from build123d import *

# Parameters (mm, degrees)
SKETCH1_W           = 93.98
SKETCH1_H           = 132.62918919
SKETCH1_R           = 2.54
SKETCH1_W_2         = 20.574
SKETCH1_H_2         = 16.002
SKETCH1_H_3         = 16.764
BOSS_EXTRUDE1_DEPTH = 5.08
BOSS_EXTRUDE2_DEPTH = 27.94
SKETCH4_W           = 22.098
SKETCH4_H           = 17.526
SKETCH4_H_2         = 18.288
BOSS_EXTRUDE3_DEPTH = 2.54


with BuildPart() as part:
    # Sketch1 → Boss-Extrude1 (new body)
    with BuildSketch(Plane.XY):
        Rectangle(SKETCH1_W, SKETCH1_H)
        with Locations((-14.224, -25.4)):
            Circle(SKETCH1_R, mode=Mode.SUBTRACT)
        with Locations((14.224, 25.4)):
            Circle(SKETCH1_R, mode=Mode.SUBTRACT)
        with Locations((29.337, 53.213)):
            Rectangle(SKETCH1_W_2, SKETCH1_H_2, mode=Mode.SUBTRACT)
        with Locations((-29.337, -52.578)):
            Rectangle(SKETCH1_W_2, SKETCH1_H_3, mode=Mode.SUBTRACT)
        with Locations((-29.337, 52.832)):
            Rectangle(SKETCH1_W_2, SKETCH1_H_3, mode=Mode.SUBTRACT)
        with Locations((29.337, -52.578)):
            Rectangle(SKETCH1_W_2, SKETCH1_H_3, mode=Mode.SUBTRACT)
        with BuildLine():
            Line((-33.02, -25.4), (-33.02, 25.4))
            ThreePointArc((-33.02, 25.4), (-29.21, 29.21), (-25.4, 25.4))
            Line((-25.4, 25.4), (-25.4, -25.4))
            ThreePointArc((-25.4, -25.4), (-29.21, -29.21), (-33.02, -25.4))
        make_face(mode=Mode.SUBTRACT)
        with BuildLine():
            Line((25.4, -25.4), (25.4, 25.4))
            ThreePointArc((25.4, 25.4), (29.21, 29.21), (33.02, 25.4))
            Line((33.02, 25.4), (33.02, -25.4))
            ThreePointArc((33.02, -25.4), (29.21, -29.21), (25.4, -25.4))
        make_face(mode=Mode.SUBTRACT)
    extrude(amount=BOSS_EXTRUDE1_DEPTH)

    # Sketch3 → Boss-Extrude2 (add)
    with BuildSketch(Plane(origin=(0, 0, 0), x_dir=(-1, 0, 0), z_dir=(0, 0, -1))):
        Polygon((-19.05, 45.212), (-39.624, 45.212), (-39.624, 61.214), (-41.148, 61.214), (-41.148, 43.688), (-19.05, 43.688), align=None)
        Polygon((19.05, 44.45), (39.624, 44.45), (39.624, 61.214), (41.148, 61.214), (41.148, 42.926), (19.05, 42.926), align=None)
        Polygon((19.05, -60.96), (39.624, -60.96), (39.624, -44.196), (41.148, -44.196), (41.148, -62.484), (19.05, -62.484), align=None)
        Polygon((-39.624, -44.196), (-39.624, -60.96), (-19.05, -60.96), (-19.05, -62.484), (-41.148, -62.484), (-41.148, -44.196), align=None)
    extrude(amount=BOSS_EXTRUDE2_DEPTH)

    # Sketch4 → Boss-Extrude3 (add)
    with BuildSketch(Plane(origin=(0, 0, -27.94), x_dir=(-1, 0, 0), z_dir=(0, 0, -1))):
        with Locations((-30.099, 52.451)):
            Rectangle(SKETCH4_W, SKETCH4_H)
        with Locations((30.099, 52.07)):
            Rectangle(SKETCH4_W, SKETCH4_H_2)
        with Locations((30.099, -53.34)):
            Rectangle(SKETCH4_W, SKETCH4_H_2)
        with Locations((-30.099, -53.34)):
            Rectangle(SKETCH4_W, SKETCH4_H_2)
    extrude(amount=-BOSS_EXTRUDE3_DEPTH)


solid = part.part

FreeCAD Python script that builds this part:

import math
import FreeCAD as App
import Part
import Sketcher
Q = App.Units.Quantity

doc = App.newDocument("Part")
body = doc.addObject("PartDesign::Body", "Body")

sketch1 = body.newObject("Sketcher::SketchObject", "Sketch")
sketch1.AttachmentSupport = (doc.getObject("XY_Plane"), [""])
sketch1.MapMode = "FlatFace"
sketch1.addGeometry([
    Part.LineSegment(App.Vector(-47, 66.3, 0), App.Vector(-47, -66.3, 0)),
    Part.LineSegment(App.Vector(-47, -66.3, 0), App.Vector(47, -66.3, 0)),
    Part.LineSegment(App.Vector(47, -66.3, 0), App.Vector(47, 66.3, 0)),
    Part.LineSegment(App.Vector(47, 66.3, 0), App.Vector(-47, 66.3, 0)),
    Part.LineSegment(App.Vector(-19.1, -61, 0), App.Vector(-39.6, -61, 0)),
    Part.LineSegment(App.Vector(-39.6, -61, 0), App.Vector(-39.6, -44.2, 0)),
    Part.LineSegment(App.Vector(-39.6, -44.2, 0), App.Vector(-19.1, -44.2, 0)),
    Part.LineSegment(App.Vector(-19.1, -44.2, 0), App.Vector(-19.1, -61, 0)),
    Part.ArcOfCircle(Part.Circle(App.Vector(-29.2, -25.4, 0), App.Vector(0, 0, 1), 3.8), math.radians(180), math.radians(360)),
    Part.LineSegment(App.Vector(-33, -25.4, 0), App.Vector(-33, 25.4, 0)),
    Part.ArcOfCircle(Part.Circle(App.Vector(-29.2, 25.4, 0), App.Vector(0, 0, 1), 3.8), math.radians(0), math.radians(180)),
    Part.LineSegment(App.Vector(-25.4, 25.4, 0), App.Vector(-25.4, -25.4, 0)),
    Part.Circle(App.Vector(-14.2, -25.4, 0), App.Vector(0, 0, 1), 2.5),
    Part.LineSegment(App.Vector(39.6, -61, 0), App.Vector(19.1, -61, 0)),
    Part.LineSegment(App.Vector(19.1, -61, 0), App.Vector(19.1, -44.2, 0)),
    Part.LineSegment(App.Vector(19.1, -44.2, 0), App.Vector(39.6, -44.2, 0)),
    Part.LineSegment(App.Vector(39.6, -44.2, 0), App.Vector(39.6, -61, 0)),
    Part.ArcOfCircle(Part.Circle(App.Vector(29.2, -25.4, 0), App.Vector(0, 0, 1), 3.8), math.radians(180), math.radians(360)),
    Part.LineSegment(App.Vector(25.4, -25.4, 0), App.Vector(25.4, 25.4, 0)),
    Part.ArcOfCircle(Part.Circle(App.Vector(29.2, 25.4, 0), App.Vector(0, 0, 1), 3.8), math.radians(0), math.radians(180)),
    Part.LineSegment(App.Vector(33, 25.4, 0), App.Vector(33, -25.4, 0)),
    Part.LineSegment(App.Vector(-19.1, 44.5, 0), App.Vector(-39.6, 44.5, 0)),
    Part.LineSegment(App.Vector(-39.6, 44.5, 0), App.Vector(-39.6, 61.2, 0)),
    Part.LineSegment(App.Vector(-39.6, 61.2, 0), App.Vector(-19.1, 61.2, 0)),
    Part.LineSegment(App.Vector(-19.1, 61.2, 0), App.Vector(-19.1, 44.5, 0)),
    Part.Circle(App.Vector(14.2, 25.4, 0), App.Vector(0, 0, 1), 2.5),
    Part.LineSegment(App.Vector(39.6, 45.2, 0), App.Vector(19.1, 45.2, 0)),
    Part.LineSegment(App.Vector(19.1, 45.2, 0), App.Vector(19.1, 61.2, 0)),
    Part.LineSegment(App.Vector(19.1, 61.2, 0), App.Vector(39.6, 61.2, 0)),
    Part.LineSegment(App.Vector(39.6, 61.2, 0), App.Vector(39.6, 45.2, 0)),
], False)
sketch1.addConstraint([
    Sketcher.Constraint("Coincident", 0, 2, 1, 1),
    Sketcher.Constraint("Coincident", 1, 2, 2, 1),
    Sketcher.Constraint("Coincident", 2, 2, 3, 1),
    Sketcher.Constraint("Coincident", 3, 2, 0, 1),
    Sketcher.Constraint("Coincident", 4, 2, 5, 1),
    Sketcher.Constraint("Coincident", 5, 2, 6, 1),
    Sketcher.Constraint("Coincident", 6, 2, 7, 1),
    Sketcher.Constraint("Coincident", 7, 2, 4, 1),
    Sketcher.Constraint("Tangent", 8, 1, 9, 1),
    Sketcher.Constraint("Tangent", 9, 2, 10, 2),
    Sketcher.Constraint("Tangent", 10, 1, 11, 1),
    Sketcher.Constraint("Tangent", 11, 2, 8, 2),
    Sketcher.Constraint("Coincident", 13, 2, 14, 1),
    Sketcher.Constraint("Coincident", 14, 2, 15, 1),
    Sketcher.Constraint("Coincident", 15, 2, 16, 1),
    Sketcher.Constraint("Coincident", 16, 2, 13, 1),
    Sketcher.Constraint("Tangent", 17, 1, 18, 1),
    Sketcher.Constraint("Tangent", 18, 2, 19, 2),
    Sketcher.Constraint("Tangent", 19, 1, 20, 1),
    Sketcher.Constraint("Tangent", 20, 2, 17, 2),
    Sketcher.Constraint("Coincident", 21, 2, 22, 1),
    Sketcher.Constraint("Coincident", 22, 2, 23, 1),
    Sketcher.Constraint("Coincident", 23, 2, 24, 1),
    Sketcher.Constraint("Coincident", 24, 2, 21, 1),
    Sketcher.Constraint("Coincident", 26, 2, 27, 1),
    Sketcher.Constraint("Coincident", 27, 2, 28, 1),
    Sketcher.Constraint("Coincident", 28, 2, 29, 1),
    Sketcher.Constraint("Coincident", 29, 2, 26, 1),
    Sketcher.Constraint("Vertical", 0),
    Sketcher.Constraint("Horizontal", 1),
    Sketcher.Constraint("Vertical", 2),
    Sketcher.Constraint("Horizontal", 3),
    Sketcher.Constraint("Horizontal", 4),
    Sketcher.Constraint("Vertical", 5),
    Sketcher.Constraint("Horizontal", 6),
    Sketcher.Constraint("Vertical", 7),
    Sketcher.Constraint("Vertical", 9),
    Sketcher.Constraint("Vertical", 11),
    Sketcher.Constraint("Horizontal", 13),
    Sketcher.Constraint("Vertical", 14),
    Sketcher.Constraint("Horizontal", 15),
    Sketcher.Constraint("Vertical", 16),
    Sketcher.Constraint("Vertical", 18),
    Sketcher.Constraint("Vertical", 20),
    Sketcher.Constraint("Horizontal", 21),
    Sketcher.Constraint("Vertical", 22),
    Sketcher.Constraint("Horizontal", 23),
    Sketcher.Constraint("Vertical", 24),
    Sketcher.Constraint("Horizontal", 26),
    Sketcher.Constraint("Vertical", 27),
    Sketcher.Constraint("Horizontal", 28),
    Sketcher.Constraint("Vertical", 29),
    Sketcher.Constraint("Equal", 10, 17),
    Sketcher.Constraint("Equal", 12, 25),
    Sketcher.Constraint("Symmetric", 10, 3, 17, 3, -1, 1),
    Sketcher.Constraint("Symmetric", 12, 3, 25, 3, -1, 1),
    Sketcher.Constraint("Symmetric", 0, 2, 2, 2, -1, 1),
    Sketcher.Constraint("Symmetric", 7, 2, 13, 2, -2),
    Sketcher.Constraint("Symmetric", 5, 2, 15, 2, -2),
    Sketcher.Constraint("Symmetric", 23, 2, 27, 2, -2),
    Sketcher.Constraint("Horizontal", 8, 3, 12, 3),
    Sketcher.Constraint("Horizontal", 12, 3, 17, 3),
    Sketcher.Constraint("Horizontal", 10, 3, 19, 3),
    Sketcher.Constraint("Vertical", 5, 2, 21, 2),
    Sketcher.Constraint("Vertical", 7, 2, 23, 2),
    Sketcher.Constraint("Vertical", 16, 2, 28, 2),
    Sketcher.Constraint("Equal", 16, 22),
    Sketcher.Constraint("Diameter", 12, Q("0.2 in")),
    Sketcher.Constraint("DistanceY", 9, 1, 9, 2, Q("2 in")),
    Sketcher.Constraint("Radius", 8, Q("0.15 in")),
    Sketcher.Constraint("DistanceX", 1, 1, 1, 2, Q("3.7 in")),
    Sketcher.Constraint("DistanceX", 10, 1, -1, 1, Q("1 in")),
    Sketcher.Constraint("DistanceX", 4, 2, 12, 3, Q("1 in")),
    Sketcher.Constraint("DistanceX", 4, 2, 4, 1, Q("0.81 in")),
    Sketcher.Constraint("DistanceY", 5, 1, 5, 2, Q("0.66 in")),
    Sketcher.Constraint("DistanceY", 27, 1, 27, 2, Q("0.63 in")),
    Sketcher.Constraint("DistanceY", 4, 2, -1, 1, Q("2.4 in")),
    Sketcher.Constraint("DistanceX", 8, 3, 6, 2, Q("0.4 in")),
    Sketcher.Constraint("DistanceY", -1, 1, 21, 2, Q("1.75 in")),
    Sketcher.Constraint("DistanceY", 0, 2, 0, 1, 132.629189),
])
pad1 = body.newObject("PartDesign::Pad", "Pad")
pad1.Profile = sketch1
pad1.Length = Q("0.2 in")

sketch2 = body.newObject("Sketcher::SketchObject", "Sketch001")
sketch2.AttachmentSupport = (doc.getObject("XY_Plane"), [""])
sketch2.MapMode = "FlatFace"
sketch2.addGeometry([
    Part.LineSegment(App.Vector(19.1, 45.2, 0), App.Vector(39.6, 45.2, 0)),
    Part.LineSegment(App.Vector(39.6, 45.2, 0), App.Vector(39.6, 61.2, 0)),
    Part.LineSegment(App.Vector(39.6, 61.2, 0), App.Vector(41.1, 61.2, 0)),
    Part.LineSegment(App.Vector(41.1, 61.2, 0), App.Vector(41.1, 43.7, 0)),
    Part.LineSegment(App.Vector(41.1, 43.7, 0), App.Vector(19.1, 43.7, 0)),
    Part.LineSegment(App.Vector(19.1, 43.7, 0), App.Vector(19.1, 45.2, 0)),
    Part.LineSegment(App.Vector(-39.6, 44.5, 0), App.Vector(-19.1, 44.5, 0)),
    Part.LineSegment(App.Vector(-19.1, 44.5, 0), App.Vector(-19.1, 42.9, 0)),
    Part.LineSegment(App.Vector(-19.1, 42.9, 0), App.Vector(-41.1, 42.9, 0)),
    Part.LineSegment(App.Vector(-41.1, 42.9, 0), App.Vector(-41.1, 61.2, 0)),
    Part.LineSegment(App.Vector(-41.1, 61.2, 0), App.Vector(-39.6, 61.2, 0)),
    Part.LineSegment(App.Vector(-39.6, 61.2, 0), App.Vector(-39.6, 44.5, 0)),
    Part.LineSegment(App.Vector(-39.6, -61, 0), App.Vector(-19.1, -61, 0)),
    Part.LineSegment(App.Vector(-19.1, -61, 0), App.Vector(-19.1, -62.5, 0)),
    Part.LineSegment(App.Vector(-19.1, -62.5, 0), App.Vector(-41.1, -62.5, 0)),
    Part.LineSegment(App.Vector(-41.1, -62.5, 0), App.Vector(-41.1, -44.2, 0)),
    Part.LineSegment(App.Vector(-41.1, -44.2, 0), App.Vector(-39.6, -44.2, 0)),
    Part.LineSegment(App.Vector(-39.6, -44.2, 0), App.Vector(-39.6, -61, 0)),
    Part.LineSegment(App.Vector(39.6, -61, 0), App.Vector(39.6, -44.2, 0)),
    Part.LineSegment(App.Vector(39.6, -44.2, 0), App.Vector(41.1, -44.2, 0)),
    Part.LineSegment(App.Vector(41.1, -44.2, 0), App.Vector(41.1, -62.5, 0)),
    Part.LineSegment(App.Vector(41.1, -62.5, 0), App.Vector(19.1, -62.5, 0)),
    Part.LineSegment(App.Vector(19.1, -62.5, 0), App.Vector(19.1, -61, 0)),
    Part.LineSegment(App.Vector(19.1, -61, 0), App.Vector(39.6, -61, 0)),
], False)
sketch2.addConstraint([
    Sketcher.Constraint("Coincident", 0, 2, 1, 1),
    Sketcher.Constraint("Coincident", 1, 2, 2, 1),
    Sketcher.Constraint("Coincident", 2, 2, 3, 1),
    Sketcher.Constraint("Coincident", 3, 2, 4, 1),
    Sketcher.Constraint("Coincident", 4, 2, 5, 1),
    Sketcher.Constraint("Coincident", 5, 2, 0, 1),
    Sketcher.Constraint("Coincident", 6, 2, 7, 1),
    Sketcher.Constraint("Coincident", 7, 2, 8, 1),
    Sketcher.Constraint("Coincident", 8, 2, 9, 1),
    Sketcher.Constraint("Coincident", 9, 2, 10, 1),
    Sketcher.Constraint("Coincident", 10, 2, 11, 1),
    Sketcher.Constraint("Coincident", 11, 2, 6, 1),
    Sketcher.Constraint("Coincident", 12, 2, 13, 1),
    Sketcher.Constraint("Coincident", 13, 2, 14, 1),
    Sketcher.Constraint("Coincident", 14, 2, 15, 1),
    Sketcher.Constraint("Coincident", 15, 2, 16, 1),
    Sketcher.Constraint("Coincident", 16, 2, 17, 1),
    Sketcher.Constraint("Coincident", 17, 2, 12, 1),
    Sketcher.Constraint("Coincident", 18, 2, 19, 1),
    Sketcher.Constraint("Coincident", 19, 2, 20, 1),
    Sketcher.Constraint("Coincident", 20, 2, 21, 1),
    Sketcher.Constraint("Coincident", 21, 2, 22, 1),
    Sketcher.Constraint("Coincident", 22, 2, 23, 1),
    Sketcher.Constraint("Coincident", 23, 2, 18, 1),
    Sketcher.Constraint("Horizontal", 0),
    Sketcher.Constraint("Vertical", 1),
    Sketcher.Constraint("Horizontal", 2),
    Sketcher.Constraint("Vertical", 3),
    Sketcher.Constraint("Horizontal", 4),
    Sketcher.Constraint("Vertical", 5),
    Sketcher.Constraint("Horizontal", 6),
    Sketcher.Constraint("Vertical", 7),
    Sketcher.Constraint("Horizontal", 8),
    Sketcher.Constraint("Vertical", 9),
    Sketcher.Constraint("Horizontal", 10),
    Sketcher.Constraint("Vertical", 11),
    Sketcher.Constraint("Horizontal", 12),
    Sketcher.Constraint("Vertical", 13),
    Sketcher.Constraint("Horizontal", 14),
    Sketcher.Constraint("Vertical", 15),
    Sketcher.Constraint("Horizontal", 16),
    Sketcher.Constraint("Vertical", 17),
    Sketcher.Constraint("Vertical", 18),
    Sketcher.Constraint("Horizontal", 19),
    Sketcher.Constraint("Vertical", 20),
    Sketcher.Constraint("Horizontal", 21),
    Sketcher.Constraint("Vertical", 22),
    Sketcher.Constraint("Horizontal", 23),
    Sketcher.Constraint("Symmetric", 2, 2, 9, 2, -2),
    Sketcher.Constraint("Symmetric", 16, 2, 18, 2, -2),
    Sketcher.Constraint("Symmetric", 14, 2, 20, 2, -2),
    Sketcher.Constraint("Symmetric", 12, 2, 22, 2, -2),
    Sketcher.Constraint("Vertical", 7, 2, 12, 2),
    Sketcher.Constraint("Vertical", 9, 2, 14, 2),
    Sketcher.Constraint("Vertical", 11, 2, 16, 2),
    Sketcher.Constraint("Vertical", 1, 2, 18, 2),
    Sketcher.Constraint("Vertical", 5, 2, 21, 2),
    Sketcher.Constraint("Equal", 19, 5),
    Sketcher.Constraint("Equal", 5, 7),
    Sketcher.Constraint("Equal", 7, 13),
    Sketcher.Constraint("Equal", 9, 15),
    Sketcher.Constraint("DistanceX", 0, 1, 0, 2, Q("0.81 in")),
    Sketcher.Constraint("DistanceX", 2, 1, 2, 2, Q("0.06 in")),
    Sketcher.Constraint("DistanceY", 1, 1, 1, 2, Q("0.63 in")),
    Sketcher.Constraint("DistanceY", 9, 1, 9, 2, Q("0.72 in")),
    Sketcher.Constraint("DistanceY", 12, 2, -1, 1, Q("2.4 in")),
    Sketcher.Constraint("DistanceX", 6, 2, 4, 2, Q("1.5 in")),
    Sketcher.Constraint("DistanceY", -1, 1, 0, 2, Q("1.78 in")),
])
pad2 = body.newObject("PartDesign::Pad", "Pad001")
pad2.Profile = sketch2
pad2.Length = Q("1.1 in")
pad2.Reversed = True

sketch3 = body.newObject("Sketcher::SketchObject", "Sketch002")
sketch3.AttachmentSupport = (doc.getObject("XY_Plane"), [""])
sketch3.MapMode = "FlatFace"
sketch3.AttachmentOffset = App.Placement(App.Vector(0, 0, -1.1 * 25.4), App.Rotation())
sketch3.addGeometry([
    Part.LineSegment(App.Vector(41, 61, 0), App.Vector(41, 44, 0)),
    Part.LineSegment(App.Vector(41, 44, 0), App.Vector(19, 44, 0)),
    Part.LineSegment(App.Vector(19, 44, 0), App.Vector(19, 61, 0)),
    Part.LineSegment(App.Vector(19, 61, 0), App.Vector(41, 61, 0)),
    Part.LineSegment(App.Vector(-19, 61, 0), App.Vector(-19, 43, 0)),
    Part.LineSegment(App.Vector(-19, 43, 0), App.Vector(-41, 43, 0)),
    Part.LineSegment(App.Vector(-41, 43, 0), App.Vector(-41, 61, 0)),
    Part.LineSegment(App.Vector(-41, 61, 0), App.Vector(-19, 61, 0)),
    Part.LineSegment(App.Vector(-19, -44, 0), App.Vector(-19, -62, 0)),
    Part.LineSegment(App.Vector(-19, -62, 0), App.Vector(-41, -62, 0)),
    Part.LineSegment(App.Vector(-41, -62, 0), App.Vector(-41, -44, 0)),
    Part.LineSegment(App.Vector(-41, -44, 0), App.Vector(-19, -44, 0)),
    Part.LineSegment(App.Vector(41, -44, 0), App.Vector(41, -62, 0)),
    Part.LineSegment(App.Vector(41, -62, 0), App.Vector(19, -62, 0)),
    Part.LineSegment(App.Vector(19, -62, 0), App.Vector(19, -44, 0)),
    Part.LineSegment(App.Vector(19, -44, 0), App.Vector(41, -44, 0)),
], False)
sketch3.addConstraint([
    Sketcher.Constraint("Coincident", 0, 2, 1, 1),
    Sketcher.Constraint("Coincident", 1, 2, 2, 1),
    Sketcher.Constraint("Coincident", 2, 2, 3, 1),
    Sketcher.Constraint("Coincident", 3, 2, 0, 1),
    Sketcher.Constraint("Coincident", 4, 2, 5, 1),
    Sketcher.Constraint("Coincident", 5, 2, 6, 1),
    Sketcher.Constraint("Coincident", 6, 2, 7, 1),
    Sketcher.Constraint("Coincident", 7, 2, 4, 1),
    Sketcher.Constraint("Coincident", 8, 2, 9, 1),
    Sketcher.Constraint("Coincident", 9, 2, 10, 1),
    Sketcher.Constraint("Coincident", 10, 2, 11, 1),
    Sketcher.Constraint("Coincident", 11, 2, 8, 1),
    Sketcher.Constraint("Coincident", 12, 2, 13, 1),
    Sketcher.Constraint("Coincident", 13, 2, 14, 1),
    Sketcher.Constraint("Coincident", 14, 2, 15, 1),
    Sketcher.Constraint("Coincident", 15, 2, 12, 1),
    Sketcher.Constraint("Vertical", 0),
    Sketcher.Constraint("Horizontal", 1),
    Sketcher.Constraint("Vertical", 2),
    Sketcher.Constraint("Horizontal", 3),
    Sketcher.Constraint("Vertical", 4),
    Sketcher.Constraint("Horizontal", 5),
    Sketcher.Constraint("Vertical", 6),
    Sketcher.Constraint("Horizontal", 7),
    Sketcher.Constraint("Vertical", 8),
    Sketcher.Constraint("Horizontal", 9),
    Sketcher.Constraint("Vertical", 10),
    Sketcher.Constraint("Horizontal", 11),
    Sketcher.Constraint("Vertical", 12),
    Sketcher.Constraint("Horizontal", 13),
    Sketcher.Constraint("Vertical", 14),
    Sketcher.Constraint("Horizontal", 15),
    Sketcher.Constraint("Symmetric", 3, 2, 6, 2, -2),
    Sketcher.Constraint("Symmetric", 9, 2, 12, 2, -2),
    Sketcher.Constraint("Symmetric", 11, 2, 14, 2, -2),
    Sketcher.Constraint("Vertical", 7, 2, 8, 2),
    Sketcher.Constraint("Vertical", 6, 2, 9, 2),
    Sketcher.Constraint("Vertical", 2, 2, 13, 2),
    Sketcher.Constraint("Equal", 6, 8),
    Sketcher.Constraint("DistanceX", 1, 2, 1, 1, Q("0.87 in")),
    Sketcher.Constraint("DistanceY", 0, 2, 0, 1, Q("0.69 in")),
    Sketcher.Constraint("DistanceY", 4, 2, 4, 1, Q("0.72 in")),
    Sketcher.Constraint("DistanceX", 4, 2, 1, 2, Q("1.5 in")),
    Sketcher.Constraint("DistanceY", -1, 1, 0, 2, Q("1.72 in")),
    Sketcher.Constraint("DistanceY", 8, 2, -1, 1, Q("2.46 in")),
])
pad3 = body.newObject("PartDesign::Pad", "Pad002")
pad3.Profile = sketch3
pad3.Length = Q("0.1 in")

doc.recompute()
